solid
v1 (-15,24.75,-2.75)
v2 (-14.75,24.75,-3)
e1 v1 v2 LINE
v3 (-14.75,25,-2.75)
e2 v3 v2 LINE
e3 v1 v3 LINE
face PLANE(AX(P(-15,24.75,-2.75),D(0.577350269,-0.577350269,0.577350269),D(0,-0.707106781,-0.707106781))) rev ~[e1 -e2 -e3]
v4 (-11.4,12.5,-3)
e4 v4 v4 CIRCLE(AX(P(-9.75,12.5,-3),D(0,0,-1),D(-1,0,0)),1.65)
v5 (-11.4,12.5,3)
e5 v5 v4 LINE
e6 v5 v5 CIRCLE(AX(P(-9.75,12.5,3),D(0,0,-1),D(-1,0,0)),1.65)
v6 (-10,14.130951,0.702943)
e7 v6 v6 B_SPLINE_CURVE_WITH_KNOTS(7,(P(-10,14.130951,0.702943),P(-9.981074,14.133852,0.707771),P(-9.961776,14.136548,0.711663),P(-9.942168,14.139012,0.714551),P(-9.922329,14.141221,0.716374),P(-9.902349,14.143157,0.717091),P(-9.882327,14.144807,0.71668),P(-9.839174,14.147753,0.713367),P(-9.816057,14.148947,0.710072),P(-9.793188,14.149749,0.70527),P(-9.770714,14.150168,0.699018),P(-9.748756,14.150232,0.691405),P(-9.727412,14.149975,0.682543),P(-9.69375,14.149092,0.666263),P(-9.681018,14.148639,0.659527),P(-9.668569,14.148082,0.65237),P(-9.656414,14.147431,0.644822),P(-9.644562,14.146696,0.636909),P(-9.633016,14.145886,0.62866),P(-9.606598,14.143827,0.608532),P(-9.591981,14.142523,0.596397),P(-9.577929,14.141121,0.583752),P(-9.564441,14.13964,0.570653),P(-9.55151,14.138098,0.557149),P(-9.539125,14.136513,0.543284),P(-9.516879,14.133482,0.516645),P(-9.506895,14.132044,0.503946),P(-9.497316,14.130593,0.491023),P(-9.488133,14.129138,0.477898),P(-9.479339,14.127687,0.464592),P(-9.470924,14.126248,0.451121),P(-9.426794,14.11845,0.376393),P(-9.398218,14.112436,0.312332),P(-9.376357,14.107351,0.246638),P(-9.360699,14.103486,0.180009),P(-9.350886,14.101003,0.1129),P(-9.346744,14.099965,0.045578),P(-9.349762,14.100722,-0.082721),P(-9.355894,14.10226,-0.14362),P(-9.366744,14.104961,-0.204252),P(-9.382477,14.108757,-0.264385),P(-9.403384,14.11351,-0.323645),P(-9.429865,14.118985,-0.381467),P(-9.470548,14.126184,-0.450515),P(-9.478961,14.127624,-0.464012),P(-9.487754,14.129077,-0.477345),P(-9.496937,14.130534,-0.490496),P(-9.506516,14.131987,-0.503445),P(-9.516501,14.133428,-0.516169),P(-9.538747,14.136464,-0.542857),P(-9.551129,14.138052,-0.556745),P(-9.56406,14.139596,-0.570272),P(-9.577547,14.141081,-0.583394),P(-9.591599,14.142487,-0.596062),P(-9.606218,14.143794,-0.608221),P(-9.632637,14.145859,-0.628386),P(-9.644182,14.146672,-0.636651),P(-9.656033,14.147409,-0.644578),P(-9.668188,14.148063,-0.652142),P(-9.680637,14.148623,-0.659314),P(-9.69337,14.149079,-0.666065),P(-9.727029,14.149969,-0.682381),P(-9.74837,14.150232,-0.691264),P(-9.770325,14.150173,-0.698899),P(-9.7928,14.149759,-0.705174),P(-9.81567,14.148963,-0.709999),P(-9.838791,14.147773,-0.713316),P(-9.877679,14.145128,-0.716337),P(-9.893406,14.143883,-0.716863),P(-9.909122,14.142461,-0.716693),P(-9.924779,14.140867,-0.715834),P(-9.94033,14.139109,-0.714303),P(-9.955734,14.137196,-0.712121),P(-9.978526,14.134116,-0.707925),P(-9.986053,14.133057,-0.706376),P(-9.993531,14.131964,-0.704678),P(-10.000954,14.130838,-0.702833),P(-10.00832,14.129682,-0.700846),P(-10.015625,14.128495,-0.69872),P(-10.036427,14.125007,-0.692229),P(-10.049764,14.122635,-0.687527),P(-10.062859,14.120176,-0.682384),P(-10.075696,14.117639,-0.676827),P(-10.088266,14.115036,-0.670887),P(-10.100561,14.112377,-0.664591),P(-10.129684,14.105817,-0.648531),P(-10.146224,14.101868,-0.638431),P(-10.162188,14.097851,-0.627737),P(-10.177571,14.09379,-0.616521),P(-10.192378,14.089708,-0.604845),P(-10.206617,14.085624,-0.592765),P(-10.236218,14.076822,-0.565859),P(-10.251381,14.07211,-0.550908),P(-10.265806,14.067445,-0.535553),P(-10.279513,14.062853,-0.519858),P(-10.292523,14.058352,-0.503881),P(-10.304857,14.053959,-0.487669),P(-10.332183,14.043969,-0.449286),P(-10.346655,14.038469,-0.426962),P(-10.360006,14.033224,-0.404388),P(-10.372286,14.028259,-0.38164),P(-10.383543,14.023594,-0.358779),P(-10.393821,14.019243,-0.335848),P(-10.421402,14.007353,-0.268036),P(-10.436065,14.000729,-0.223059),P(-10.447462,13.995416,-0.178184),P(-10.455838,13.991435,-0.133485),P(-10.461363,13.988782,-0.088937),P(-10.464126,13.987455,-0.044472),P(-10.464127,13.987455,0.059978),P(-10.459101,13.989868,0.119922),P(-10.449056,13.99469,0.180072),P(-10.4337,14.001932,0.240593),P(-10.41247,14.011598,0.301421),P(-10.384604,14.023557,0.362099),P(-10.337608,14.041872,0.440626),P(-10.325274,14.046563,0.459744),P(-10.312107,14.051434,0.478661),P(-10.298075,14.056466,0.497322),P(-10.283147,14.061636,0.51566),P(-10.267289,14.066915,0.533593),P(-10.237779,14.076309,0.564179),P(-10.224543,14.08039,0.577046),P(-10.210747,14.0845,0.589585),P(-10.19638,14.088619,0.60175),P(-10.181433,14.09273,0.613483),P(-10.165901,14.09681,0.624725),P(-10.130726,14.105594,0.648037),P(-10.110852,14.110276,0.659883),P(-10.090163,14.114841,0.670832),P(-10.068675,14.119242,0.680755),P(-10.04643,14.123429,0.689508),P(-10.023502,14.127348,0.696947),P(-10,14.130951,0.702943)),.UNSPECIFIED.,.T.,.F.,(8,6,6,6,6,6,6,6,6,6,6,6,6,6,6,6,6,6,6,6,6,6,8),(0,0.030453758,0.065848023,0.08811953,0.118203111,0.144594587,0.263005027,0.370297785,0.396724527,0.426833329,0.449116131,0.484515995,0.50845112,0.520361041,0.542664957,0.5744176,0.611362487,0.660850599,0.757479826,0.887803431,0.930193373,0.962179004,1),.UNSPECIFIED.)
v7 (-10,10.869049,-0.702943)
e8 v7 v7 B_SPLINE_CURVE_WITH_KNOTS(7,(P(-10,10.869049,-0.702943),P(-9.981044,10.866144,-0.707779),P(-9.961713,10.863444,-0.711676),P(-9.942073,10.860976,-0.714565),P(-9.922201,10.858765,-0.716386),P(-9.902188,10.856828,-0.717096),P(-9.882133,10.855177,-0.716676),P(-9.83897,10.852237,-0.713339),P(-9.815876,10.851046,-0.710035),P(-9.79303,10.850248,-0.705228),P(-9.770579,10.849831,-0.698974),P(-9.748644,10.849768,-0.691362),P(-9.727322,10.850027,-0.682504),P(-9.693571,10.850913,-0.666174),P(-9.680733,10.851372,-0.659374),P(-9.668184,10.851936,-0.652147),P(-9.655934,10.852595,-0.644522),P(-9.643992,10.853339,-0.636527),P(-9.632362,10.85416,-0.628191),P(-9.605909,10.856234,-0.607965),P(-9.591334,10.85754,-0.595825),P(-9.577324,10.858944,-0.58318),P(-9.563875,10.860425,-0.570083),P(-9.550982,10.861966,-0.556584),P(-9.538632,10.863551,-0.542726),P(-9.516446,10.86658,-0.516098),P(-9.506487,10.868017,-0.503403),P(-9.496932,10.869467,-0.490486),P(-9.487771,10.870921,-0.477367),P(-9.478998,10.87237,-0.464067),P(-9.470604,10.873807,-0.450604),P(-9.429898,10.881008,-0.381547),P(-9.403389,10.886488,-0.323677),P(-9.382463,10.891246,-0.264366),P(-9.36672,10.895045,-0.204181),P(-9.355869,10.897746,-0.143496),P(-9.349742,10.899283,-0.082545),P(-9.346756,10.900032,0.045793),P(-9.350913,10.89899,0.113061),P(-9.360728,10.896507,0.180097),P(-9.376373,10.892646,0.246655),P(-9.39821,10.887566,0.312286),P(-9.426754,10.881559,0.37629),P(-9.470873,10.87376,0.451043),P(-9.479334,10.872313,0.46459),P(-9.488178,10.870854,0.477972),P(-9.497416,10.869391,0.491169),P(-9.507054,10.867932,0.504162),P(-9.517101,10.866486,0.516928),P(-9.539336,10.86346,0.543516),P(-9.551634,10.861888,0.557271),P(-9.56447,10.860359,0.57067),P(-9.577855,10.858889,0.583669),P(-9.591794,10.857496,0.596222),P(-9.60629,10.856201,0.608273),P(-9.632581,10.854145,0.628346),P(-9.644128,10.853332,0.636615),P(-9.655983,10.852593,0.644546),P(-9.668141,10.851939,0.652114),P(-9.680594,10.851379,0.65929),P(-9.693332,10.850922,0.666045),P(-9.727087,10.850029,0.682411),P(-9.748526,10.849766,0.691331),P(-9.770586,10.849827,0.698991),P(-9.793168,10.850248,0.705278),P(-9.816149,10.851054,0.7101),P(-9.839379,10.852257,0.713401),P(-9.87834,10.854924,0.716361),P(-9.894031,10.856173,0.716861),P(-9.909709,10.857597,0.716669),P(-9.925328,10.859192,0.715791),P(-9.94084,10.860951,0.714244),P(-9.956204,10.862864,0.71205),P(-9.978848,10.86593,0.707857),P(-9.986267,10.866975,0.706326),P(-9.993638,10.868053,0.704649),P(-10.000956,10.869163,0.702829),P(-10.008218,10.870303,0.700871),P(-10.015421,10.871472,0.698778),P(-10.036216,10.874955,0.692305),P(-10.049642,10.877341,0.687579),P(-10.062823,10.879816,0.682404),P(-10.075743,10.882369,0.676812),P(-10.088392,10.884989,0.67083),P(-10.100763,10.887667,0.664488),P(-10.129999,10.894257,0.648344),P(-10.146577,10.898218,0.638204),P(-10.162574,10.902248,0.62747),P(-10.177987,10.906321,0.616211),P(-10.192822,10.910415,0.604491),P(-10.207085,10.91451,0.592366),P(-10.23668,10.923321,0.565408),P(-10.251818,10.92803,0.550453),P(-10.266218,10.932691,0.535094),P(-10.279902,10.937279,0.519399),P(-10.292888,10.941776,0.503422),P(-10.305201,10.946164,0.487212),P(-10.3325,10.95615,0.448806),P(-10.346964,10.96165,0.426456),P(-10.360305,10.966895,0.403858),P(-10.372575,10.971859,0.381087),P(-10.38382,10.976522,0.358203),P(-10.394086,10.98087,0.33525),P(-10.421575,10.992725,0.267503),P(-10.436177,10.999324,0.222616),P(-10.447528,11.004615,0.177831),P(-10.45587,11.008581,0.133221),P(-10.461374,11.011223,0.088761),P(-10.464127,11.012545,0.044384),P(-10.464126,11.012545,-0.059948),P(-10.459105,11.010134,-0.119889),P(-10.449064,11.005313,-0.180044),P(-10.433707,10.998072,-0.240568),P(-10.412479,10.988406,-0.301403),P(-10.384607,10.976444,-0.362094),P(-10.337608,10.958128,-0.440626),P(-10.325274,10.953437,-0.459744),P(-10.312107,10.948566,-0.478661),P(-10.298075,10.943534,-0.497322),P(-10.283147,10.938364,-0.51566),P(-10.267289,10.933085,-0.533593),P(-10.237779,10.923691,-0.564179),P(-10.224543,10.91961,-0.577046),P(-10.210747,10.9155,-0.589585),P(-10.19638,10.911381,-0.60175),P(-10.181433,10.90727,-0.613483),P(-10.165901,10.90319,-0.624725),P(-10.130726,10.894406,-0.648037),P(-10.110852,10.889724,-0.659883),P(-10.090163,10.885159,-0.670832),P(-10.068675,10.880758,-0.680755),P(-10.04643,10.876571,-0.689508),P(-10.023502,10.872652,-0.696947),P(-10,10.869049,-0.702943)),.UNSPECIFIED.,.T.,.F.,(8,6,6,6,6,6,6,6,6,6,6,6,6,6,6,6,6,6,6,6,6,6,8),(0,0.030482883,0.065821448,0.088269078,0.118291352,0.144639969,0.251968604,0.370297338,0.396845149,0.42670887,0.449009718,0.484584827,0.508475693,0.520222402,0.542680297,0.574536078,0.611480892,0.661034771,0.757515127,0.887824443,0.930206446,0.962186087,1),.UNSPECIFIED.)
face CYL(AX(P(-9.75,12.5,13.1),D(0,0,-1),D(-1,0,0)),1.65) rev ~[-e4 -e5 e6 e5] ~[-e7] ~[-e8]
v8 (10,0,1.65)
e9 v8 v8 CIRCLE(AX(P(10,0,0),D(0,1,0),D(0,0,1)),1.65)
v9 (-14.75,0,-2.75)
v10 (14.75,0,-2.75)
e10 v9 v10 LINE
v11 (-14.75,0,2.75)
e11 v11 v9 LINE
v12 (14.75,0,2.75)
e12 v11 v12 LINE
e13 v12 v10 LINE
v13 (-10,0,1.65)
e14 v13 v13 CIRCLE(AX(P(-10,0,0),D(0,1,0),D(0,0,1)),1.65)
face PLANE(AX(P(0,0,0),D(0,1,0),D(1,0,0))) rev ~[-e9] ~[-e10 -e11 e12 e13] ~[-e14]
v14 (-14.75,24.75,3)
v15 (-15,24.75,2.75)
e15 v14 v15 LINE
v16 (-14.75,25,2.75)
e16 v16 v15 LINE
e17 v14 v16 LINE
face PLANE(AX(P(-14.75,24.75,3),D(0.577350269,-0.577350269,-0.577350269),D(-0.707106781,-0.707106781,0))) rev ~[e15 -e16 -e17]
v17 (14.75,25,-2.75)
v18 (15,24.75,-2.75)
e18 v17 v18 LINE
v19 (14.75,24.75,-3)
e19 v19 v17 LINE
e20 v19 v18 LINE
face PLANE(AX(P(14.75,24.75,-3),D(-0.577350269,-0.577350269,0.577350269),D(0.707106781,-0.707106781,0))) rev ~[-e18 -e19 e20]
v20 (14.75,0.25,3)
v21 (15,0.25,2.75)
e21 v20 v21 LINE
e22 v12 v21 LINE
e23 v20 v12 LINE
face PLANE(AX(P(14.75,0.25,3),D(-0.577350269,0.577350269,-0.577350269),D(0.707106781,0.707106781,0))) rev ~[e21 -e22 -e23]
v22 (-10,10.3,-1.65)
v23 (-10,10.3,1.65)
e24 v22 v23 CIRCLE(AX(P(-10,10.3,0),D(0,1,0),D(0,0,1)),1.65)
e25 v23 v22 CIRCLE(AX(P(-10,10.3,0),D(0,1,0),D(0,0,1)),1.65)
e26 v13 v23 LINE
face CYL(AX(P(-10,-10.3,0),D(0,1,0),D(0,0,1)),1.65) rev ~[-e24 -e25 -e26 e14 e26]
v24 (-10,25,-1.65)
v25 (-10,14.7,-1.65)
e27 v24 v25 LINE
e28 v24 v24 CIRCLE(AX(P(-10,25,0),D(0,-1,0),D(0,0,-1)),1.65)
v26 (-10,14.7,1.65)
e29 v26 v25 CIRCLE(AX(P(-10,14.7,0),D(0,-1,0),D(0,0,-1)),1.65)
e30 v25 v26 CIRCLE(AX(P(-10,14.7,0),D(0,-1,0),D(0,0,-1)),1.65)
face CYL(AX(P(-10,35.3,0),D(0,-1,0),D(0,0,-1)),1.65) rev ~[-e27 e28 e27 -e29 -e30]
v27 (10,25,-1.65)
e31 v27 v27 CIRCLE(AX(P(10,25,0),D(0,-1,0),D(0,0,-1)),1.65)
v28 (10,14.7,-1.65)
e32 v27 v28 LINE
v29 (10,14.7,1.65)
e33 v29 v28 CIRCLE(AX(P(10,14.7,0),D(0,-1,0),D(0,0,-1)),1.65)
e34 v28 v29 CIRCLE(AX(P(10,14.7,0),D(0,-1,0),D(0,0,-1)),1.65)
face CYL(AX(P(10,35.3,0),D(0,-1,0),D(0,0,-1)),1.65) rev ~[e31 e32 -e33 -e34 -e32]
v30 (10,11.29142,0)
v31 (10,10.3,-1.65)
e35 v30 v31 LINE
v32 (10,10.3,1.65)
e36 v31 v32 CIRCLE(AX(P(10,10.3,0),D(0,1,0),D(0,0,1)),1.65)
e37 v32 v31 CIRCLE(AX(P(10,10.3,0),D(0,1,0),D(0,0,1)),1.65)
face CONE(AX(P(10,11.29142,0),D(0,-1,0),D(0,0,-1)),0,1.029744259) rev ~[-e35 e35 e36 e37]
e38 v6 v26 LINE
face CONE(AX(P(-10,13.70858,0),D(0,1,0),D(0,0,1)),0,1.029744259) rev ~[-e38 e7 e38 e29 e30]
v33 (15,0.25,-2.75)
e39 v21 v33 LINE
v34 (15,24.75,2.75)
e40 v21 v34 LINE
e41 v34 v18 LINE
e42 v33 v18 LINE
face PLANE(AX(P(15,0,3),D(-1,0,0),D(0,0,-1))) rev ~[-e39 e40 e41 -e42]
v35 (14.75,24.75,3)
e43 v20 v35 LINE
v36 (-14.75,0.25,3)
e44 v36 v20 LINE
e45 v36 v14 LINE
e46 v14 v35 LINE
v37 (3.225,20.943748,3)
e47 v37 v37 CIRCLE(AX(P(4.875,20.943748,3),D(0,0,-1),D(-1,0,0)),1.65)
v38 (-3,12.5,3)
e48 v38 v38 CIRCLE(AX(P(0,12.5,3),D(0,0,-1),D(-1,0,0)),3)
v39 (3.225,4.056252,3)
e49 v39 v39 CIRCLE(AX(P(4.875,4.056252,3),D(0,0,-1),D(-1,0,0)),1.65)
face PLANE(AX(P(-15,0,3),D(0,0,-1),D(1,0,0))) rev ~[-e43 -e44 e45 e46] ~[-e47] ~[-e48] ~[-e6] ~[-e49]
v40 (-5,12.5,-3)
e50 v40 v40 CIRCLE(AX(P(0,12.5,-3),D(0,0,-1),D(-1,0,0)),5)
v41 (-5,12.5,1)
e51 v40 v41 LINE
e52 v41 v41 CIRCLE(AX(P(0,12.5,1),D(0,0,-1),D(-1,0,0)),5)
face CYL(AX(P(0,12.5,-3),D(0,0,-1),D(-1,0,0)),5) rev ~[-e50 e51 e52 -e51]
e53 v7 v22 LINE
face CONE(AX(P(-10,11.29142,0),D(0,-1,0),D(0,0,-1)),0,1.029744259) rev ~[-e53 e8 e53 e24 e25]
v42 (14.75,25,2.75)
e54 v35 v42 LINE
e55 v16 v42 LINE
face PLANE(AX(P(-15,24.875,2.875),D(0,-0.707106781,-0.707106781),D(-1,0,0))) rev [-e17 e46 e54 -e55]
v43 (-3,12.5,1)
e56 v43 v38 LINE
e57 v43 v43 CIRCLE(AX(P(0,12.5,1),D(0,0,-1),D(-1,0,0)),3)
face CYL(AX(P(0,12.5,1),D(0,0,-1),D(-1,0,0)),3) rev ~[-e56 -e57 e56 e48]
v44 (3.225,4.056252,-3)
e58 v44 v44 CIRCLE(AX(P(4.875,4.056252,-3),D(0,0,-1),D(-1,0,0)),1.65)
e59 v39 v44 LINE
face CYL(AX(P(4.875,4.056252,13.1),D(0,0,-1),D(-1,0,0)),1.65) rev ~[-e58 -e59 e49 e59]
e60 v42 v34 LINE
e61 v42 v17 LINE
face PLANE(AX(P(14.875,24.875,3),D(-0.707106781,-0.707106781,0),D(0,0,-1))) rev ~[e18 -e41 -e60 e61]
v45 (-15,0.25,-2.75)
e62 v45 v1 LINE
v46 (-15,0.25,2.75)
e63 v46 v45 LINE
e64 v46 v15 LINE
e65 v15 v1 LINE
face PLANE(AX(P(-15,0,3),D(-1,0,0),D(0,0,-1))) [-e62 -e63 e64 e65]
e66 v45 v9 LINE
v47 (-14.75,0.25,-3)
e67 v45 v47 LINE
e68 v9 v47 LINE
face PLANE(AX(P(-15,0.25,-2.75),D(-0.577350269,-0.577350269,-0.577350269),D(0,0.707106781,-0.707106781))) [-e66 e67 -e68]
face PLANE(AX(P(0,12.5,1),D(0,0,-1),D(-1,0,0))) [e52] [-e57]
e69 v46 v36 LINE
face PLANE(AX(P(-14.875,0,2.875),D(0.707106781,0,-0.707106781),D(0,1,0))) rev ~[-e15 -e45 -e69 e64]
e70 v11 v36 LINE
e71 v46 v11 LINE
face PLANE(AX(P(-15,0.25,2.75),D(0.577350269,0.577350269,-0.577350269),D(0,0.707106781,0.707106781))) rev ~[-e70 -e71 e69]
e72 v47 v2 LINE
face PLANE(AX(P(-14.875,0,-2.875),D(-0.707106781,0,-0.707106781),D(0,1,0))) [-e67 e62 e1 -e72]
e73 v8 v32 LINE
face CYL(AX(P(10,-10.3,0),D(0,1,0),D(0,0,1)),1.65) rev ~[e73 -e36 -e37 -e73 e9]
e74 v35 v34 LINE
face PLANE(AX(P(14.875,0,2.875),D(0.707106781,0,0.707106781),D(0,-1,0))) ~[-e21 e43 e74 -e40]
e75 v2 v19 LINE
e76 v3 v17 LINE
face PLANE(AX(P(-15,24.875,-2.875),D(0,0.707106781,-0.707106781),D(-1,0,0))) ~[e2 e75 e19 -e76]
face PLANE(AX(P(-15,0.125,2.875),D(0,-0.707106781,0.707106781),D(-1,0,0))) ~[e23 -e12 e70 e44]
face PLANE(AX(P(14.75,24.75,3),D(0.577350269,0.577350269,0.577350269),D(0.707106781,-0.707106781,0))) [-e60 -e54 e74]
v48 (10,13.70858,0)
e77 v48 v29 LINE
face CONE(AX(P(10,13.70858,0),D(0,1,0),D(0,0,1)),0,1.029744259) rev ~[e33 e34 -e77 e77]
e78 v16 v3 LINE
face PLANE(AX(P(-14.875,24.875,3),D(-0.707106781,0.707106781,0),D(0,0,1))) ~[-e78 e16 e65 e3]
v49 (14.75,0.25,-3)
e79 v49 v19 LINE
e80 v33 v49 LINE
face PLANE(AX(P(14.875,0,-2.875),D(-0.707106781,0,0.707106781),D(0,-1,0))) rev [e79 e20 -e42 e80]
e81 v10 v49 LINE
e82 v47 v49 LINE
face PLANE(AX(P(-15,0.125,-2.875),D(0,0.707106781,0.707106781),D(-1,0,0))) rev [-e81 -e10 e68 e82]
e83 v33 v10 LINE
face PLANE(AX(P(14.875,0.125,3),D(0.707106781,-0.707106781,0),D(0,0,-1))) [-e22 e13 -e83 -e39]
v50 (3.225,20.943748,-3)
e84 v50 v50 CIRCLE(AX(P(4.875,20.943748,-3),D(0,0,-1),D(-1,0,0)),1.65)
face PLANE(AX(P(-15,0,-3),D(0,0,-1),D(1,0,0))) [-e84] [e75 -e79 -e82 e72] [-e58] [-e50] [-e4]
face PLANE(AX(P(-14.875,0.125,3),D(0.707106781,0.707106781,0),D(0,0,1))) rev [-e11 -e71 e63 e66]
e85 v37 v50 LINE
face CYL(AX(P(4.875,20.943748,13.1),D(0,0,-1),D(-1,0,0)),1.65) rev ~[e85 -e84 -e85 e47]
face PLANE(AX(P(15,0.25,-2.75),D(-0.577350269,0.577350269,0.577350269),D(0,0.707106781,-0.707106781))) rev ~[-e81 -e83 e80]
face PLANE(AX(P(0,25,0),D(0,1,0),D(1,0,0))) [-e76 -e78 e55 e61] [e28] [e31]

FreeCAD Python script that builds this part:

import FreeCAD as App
import Part
import Sketcher

V = App.Vector


def edges_at(feature, points):
    """Names of the edges that pass closest to the given points."""
    edges = feature.Shape.Edges
    near = lambda p: min(range(len(edges)), key=lambda i: edges[i].distToShape(Part.Vertex(*p))[0])
    return sorted({f"Edge{near(p) + 1}" for p in points})

doc = App.newDocument("Part")
body = doc.addObject("PartDesign::Body", "Body")

sketch1 = body.newObject("Sketcher::SketchObject", "Sketch")
sketch1.AttachmentSupport = (doc.getObject("XZ_Plane"), [""])
sketch1.MapMode = "FlatFace"
sketch1.addGeometry([
    Part.LineSegment(V(-15, -3, 0), V(-15, 3, 0)),
    Part.LineSegment(V(-15, 3, 0), V(15, 3, 0)),
    Part.LineSegment(V(15, 3, 0), V(15, -3, 0)),
    Part.LineSegment(V(15, -3, 0), V(-15, -3, 0)),
], False)
sketch1.addConstraint([
    Sketcher.Constraint("Coincident", 0, 2, 1, 1),
    Sketcher.Constraint("Coincident", 1, 2, 2, 1),
    Sketcher.Constraint("Coincident", 2, 2, 3, 1),
    Sketcher.Constraint("Coincident", 3, 2, 0, 1),
    Sketcher.Constraint("Vertical", 0),
    Sketcher.Constraint("Horizontal", 1),
    Sketcher.Constraint("Vertical", 2),
    Sketcher.Constraint("Horizontal", 3),
    Sketcher.Constraint("Symmetric", 0, 2, 2, 2, -1, 1),
    Sketcher.Constraint("DistanceX", 1, 1, 1, 2, 30.0),
    Sketcher.Constraint("DistanceY", 0, 1, 0, 2, 6.0),
])
pad1 = body.newObject("PartDesign::Pad", "Pad")
pad1.Profile = sketch1
pad1.Length = 25
pad1.Reversed = True

sketch2 = body.newObject("Sketcher::SketchObject", "Sketch001")
sketch2.AttachmentSupport = (doc.getObject("XY_Plane"), [""])
sketch2.MapMode = "FlatFace"
sketch2.AttachmentOffset = App.Placement(V(0, 0, -3), App.Rotation())
sketch2.addGeometry(Part.Circle(V(0, 12, 0), V(0, 0, 1), 5), False)
sketch2.addConstraint([
    Sketcher.Constraint("PointOnObject", 0, 3, -2),
    Sketcher.Constraint("Diameter", 0, 10.0),
    Sketcher.Constraint("DistanceY", -1, 1, 0, 3, 12.5),
])
pocket1 = body.newObject("PartDesign::Pocket", "Pocket")
pocket1.Profile = sketch2
pocket1.Length = 4
pocket1.Reversed = True

sketch3 = body.newObject("Sketcher::SketchObject", "Sketch002")
sketch3.AttachmentSupport = (doc.getObject("XY_Plane"), [""])
sketch3.MapMode = "FlatFace"
sketch3.AttachmentOffset = App.Placement(V(0, 0, 1), App.Rotation())
sketch3.addGeometry(Part.Circle(V(0, 12.5, 0), V(0, 0, 1), 3), False)
sketch3.addConstraint([
    Sketcher.Constraint("PointOnObject", 0, 3, -2),
    Sketcher.Constraint("Diameter", 0, 6.0),
    Sketcher.Constraint("DistanceY", -1, 1, 0, 3, 12.5),
])
pocket2 = body.newObject("PartDesign::Pocket", "Pocket001")
pocket2.Profile = sketch3
pocket2.Length = 12
pocket2.Reversed = True

sketch4 = body.newObject("Sketcher::SketchObject", "Sketch003")
sketch4.AttachmentSupport = (doc.getObject("XZ_Plane"), [""])
sketch4.MapMode = "FlatFace"
sketch4.AttachmentOffset = App.Placement(V(0, 0, -25), App.Rotation())
sketch4.addGeometry([
    Part.Circle(V(10, 0, 0), V(0, 0, 1), 1.6),
    Part.Circle(V(-10, 0, 0), V(0, 0, 1), 1.6),
], False)
sketch4.addConstraint([
    Sketcher.Constraint("Equal", 0, 1),
    Sketcher.Constraint("Symmetric", 0, 3, 1, 3, -1, 1),
    Sketcher.Constraint("PointOnObject", 0, 3, -1),
    Sketcher.Constraint("Diameter", 0, 3.3),
    Sketcher.Constraint("DistanceX", -1, 1, 0, 3, 10.0),
])
doc.recompute()
hole = body.newObject("PartDesign::Hole", "Hole")
hole.Profile = sketch4
hole.ThreadType = "None"
hole.Diameter = 3.3
hole.DepthType = "Dimension"
hole.Depth = 10.3
hole.DrillPoint = "Angled"
hole.DrillPointAngle = 118
hole.Reversed = True

sketch5 = body.newObject("Sketcher::SketchObject", "Sketch004")
sketch5.AttachmentSupport = (doc.getObject("XZ_Plane"), [""])
sketch5.MapMode = "FlatFace"
sketch5.addGeometry([
    Part.Circle(V(10, 0, 0), V(0, 0, 1), 1.6),
    Part.Circle(V(-10, 0, 0), V(0, 0, 1), 1.6),
], False)
sketch5.addConstraint([
    Sketcher.Constraint("Equal", 0, 1),
    Sketcher.Constraint("Symmetric", 0, 3, 1, 3, -1, 1),
    Sketcher.Constraint("PointOnObject", 0, 3, -1),
    Sketcher.Constraint("Diameter", 0, 3.3),
    Sketcher.Constraint("DistanceX", -1, 1, 0, 3, 10.0),
])
doc.recompute()
hole2 = body.newObject("PartDesign::Hole", "Hole001")
hole2.Profile = sketch5
hole2.ThreadType = "None"
hole2.Diameter = 3.3
hole2.DepthType = "Dimension"
hole2.Depth = 10.3
hole2.DrillPoint = "Angled"
hole2.DrillPointAngle = 118
doc.recompute()

chamfer = body.newObject("PartDesign::Chamfer", "Chamfer")
chamfer.Base = (hole2, edges_at(hole2, [
    (15, 25, 0),
    (0, 25, -3),
    (-15, 25, 0),
    (0, 0, -3),
    (15, 0, 0),
    (0, 0, 3),
    (-15, 0, 0),
    (0, 25, 3),
    (-15, 12.5, -3),
    (15, 12.5, -3),
    (15, 12.5, 3),
    (-15, 12.5, 3),
]))
chamfer.Size = 0.25

sketch6 = body.newObject("Sketcher::SketchObject", "Sketch005")
sketch6.AttachmentSupport = (doc.getObject("XY_Plane"), [""])
sketch6.MapMode = "FlatFace"
sketch6.AttachmentOffset = App.Placement(V(0, 0, 3), App.Rotation())
sketch6.addGeometry([
    Part.Circle(V(-9.8, 12.5, 0), V(0, 0, 1), 1.6),
    Part.Circle(V(4.9, 4.1, 0), V(0, 0, 1), 1.6),
    Part.Circle(V(4.9, 20.9, 0), V(0, 0, 1), 1.6),
], False)
sketch6.addConstraint([
    Sketcher.Constraint("Equal", 0, 1),
    Sketcher.Constraint("Equal", 1, 2),
    Sketcher.Constraint("Vertical", 1, 3, 2, 3),
    Sketcher.Constraint("Diameter", 0, 3.3),
    Sketcher.Constraint("DistanceY", -1, 1, 0, 3, 12.5),
    Sketcher.Constraint("DistanceX", 0, 3, -1, 1, 9.75),
    Sketcher.Constraint("DistanceX", -1, 1, 1, 3, 4.875),
    Sketcher.Constraint("DistanceY", -1, 1, 1, 3, 4.056252),
    Sketcher.Constraint("DistanceY", -1, 1, 2, 3, 20.943748),
])
doc.recompute()
hole3 = body.newObject("PartDesign::Hole", "Hole002")
hole3.Profile = sketch6
hole3.ThreadType = "None"
hole3.Diameter = 3.3
hole3.DepthType = "Dimension"
hole3.Depth = 10.1
hole3.DrillPoint = "Angled"
hole3.DrillPointAngle = 118

doc.recompute()
